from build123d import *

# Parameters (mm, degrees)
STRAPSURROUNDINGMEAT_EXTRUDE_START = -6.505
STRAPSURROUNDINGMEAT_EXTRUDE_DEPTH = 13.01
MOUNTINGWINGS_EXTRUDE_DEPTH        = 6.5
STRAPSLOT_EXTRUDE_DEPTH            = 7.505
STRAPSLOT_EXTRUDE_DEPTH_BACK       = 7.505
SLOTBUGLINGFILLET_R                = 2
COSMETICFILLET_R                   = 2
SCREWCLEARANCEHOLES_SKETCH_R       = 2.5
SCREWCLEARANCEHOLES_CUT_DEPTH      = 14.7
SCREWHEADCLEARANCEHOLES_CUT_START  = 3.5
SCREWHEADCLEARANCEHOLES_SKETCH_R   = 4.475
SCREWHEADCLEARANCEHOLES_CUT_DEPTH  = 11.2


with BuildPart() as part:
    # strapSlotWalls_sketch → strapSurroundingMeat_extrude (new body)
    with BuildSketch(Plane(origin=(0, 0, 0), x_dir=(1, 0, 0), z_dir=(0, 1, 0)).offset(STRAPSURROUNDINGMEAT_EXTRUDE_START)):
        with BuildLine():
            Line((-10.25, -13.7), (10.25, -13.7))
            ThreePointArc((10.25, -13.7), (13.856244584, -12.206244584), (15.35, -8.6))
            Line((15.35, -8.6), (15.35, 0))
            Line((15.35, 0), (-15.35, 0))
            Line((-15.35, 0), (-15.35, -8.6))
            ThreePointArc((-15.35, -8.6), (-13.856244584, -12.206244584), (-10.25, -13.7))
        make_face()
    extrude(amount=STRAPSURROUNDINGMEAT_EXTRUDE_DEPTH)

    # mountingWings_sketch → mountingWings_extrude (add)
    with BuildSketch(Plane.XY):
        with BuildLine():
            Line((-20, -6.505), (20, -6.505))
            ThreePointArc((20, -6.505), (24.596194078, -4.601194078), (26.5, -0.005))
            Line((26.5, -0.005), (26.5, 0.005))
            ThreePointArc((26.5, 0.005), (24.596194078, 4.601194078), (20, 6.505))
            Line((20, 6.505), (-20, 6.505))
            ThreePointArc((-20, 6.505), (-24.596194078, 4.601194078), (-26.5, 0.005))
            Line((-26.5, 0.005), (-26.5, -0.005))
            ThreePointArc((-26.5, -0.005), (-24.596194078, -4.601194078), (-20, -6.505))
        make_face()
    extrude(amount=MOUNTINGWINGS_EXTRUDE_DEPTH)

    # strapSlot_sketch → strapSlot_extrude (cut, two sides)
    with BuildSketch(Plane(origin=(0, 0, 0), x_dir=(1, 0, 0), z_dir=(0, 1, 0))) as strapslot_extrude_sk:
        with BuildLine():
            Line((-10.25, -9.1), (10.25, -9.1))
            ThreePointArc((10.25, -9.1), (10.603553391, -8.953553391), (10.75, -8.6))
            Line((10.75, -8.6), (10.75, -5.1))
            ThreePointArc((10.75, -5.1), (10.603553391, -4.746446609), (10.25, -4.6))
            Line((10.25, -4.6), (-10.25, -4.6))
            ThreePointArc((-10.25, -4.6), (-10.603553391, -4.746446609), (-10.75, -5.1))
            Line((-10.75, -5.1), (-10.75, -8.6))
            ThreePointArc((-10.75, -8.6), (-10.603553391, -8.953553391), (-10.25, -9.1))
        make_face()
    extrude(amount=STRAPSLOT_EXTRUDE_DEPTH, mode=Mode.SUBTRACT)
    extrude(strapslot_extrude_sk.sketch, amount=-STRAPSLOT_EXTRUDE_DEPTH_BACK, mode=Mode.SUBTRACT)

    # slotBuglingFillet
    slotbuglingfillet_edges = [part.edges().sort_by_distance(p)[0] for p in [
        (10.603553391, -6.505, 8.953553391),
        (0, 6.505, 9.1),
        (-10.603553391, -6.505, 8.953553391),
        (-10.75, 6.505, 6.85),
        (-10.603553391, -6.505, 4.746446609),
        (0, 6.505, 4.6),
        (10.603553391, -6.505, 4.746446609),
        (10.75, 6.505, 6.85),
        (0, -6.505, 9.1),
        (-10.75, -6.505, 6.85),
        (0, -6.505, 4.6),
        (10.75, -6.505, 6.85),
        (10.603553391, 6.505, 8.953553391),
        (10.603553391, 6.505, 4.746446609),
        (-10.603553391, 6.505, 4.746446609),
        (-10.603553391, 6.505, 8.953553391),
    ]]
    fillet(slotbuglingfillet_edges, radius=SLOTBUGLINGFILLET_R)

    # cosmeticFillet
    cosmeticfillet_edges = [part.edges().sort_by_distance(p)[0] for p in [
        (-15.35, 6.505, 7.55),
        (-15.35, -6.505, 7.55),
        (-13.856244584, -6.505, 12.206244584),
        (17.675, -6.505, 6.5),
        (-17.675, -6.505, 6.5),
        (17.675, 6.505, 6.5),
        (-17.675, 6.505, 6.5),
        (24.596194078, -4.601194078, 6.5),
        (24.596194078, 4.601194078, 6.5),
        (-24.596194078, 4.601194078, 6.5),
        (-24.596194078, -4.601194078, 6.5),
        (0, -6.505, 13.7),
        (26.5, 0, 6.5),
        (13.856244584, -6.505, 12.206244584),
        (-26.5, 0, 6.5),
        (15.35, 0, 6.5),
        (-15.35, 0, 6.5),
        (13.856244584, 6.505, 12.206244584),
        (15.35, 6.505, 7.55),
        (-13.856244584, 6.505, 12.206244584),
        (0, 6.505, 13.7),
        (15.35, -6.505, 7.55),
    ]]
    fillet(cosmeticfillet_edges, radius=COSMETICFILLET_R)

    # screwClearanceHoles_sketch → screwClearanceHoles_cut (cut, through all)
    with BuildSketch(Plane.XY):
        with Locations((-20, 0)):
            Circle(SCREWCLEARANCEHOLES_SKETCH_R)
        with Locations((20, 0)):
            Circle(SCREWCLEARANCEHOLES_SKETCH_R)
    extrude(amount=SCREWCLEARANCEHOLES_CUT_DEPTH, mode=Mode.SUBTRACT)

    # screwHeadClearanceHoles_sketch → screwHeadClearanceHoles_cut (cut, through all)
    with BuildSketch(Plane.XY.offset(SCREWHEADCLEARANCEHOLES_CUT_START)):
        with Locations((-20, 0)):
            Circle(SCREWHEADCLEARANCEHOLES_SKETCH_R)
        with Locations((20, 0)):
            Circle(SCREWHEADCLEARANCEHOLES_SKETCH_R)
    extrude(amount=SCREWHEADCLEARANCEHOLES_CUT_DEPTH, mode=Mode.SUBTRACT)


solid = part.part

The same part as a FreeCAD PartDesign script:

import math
import FreeCAD as App
import Part
import Sketcher

V = App.Vector


def edges_at(feature, points):
    """Names of the edges that pass closest to the given points."""
    edges = feature.Shape.Edges
    near = lambda p: min(range(len(edges)), key=lambda i: edges[i].distToShape(Part.Vertex(*p))[0])
    return sorted({f"Edge{near(p) + 1}" for p in points})

doc = App.newDocument("Part")
body = doc.addObject("PartDesign::Body", "Body")

sketch1 = doc.addObject("Sketcher::SketchObject", "Sketch")
body.addObject(sketch1)
sketch1.AttachmentSupport = (doc.XZ_Plane, [""])
sketch1.MapMode = "FlatFace"
sketch1.AttachmentOffset = App.Placement(V(0, 0, 6.505), App.Rotation())
sketch1.addGeometry([
    Part.LineSegment(V(-10, 14, 0), V(10, 14, 0)),
    Part.ArcOfCircle(Part.Circle(V(10, 9, 0), V(0, 0, 1), 5), math.radians(0), math.radians(90)),
    Part.LineSegment(V(15, 9, 0), V(15, 0, 0)),
    Part.LineSegment(V(15, 0, 0), V(-15, 0, 0)),
    Part.LineSegment(V(-15, 0, 0), V(-15, 9, 0)),
    Part.ArcOfCircle(Part.Circle(V(-10, 9, 0), V(0, 0, 1), 5), math.radians(90), math.radians(180)),
], False)
sketch1.addConstraint([
    Sketcher.Constraint("Tangent", 0, 2, 1, 2),
    Sketcher.Constraint("Tangent", 1, 1, 2, 1),
    Sketcher.Constraint("Coincident", 2, 2, 3, 1),
    Sketcher.Constraint("Coincident", 3, 2, 4, 1),
    Sketcher.Constraint("Tangent", 4, 2, 5, 2),
    Sketcher.Constraint("Tangent", 5, 1, 0, 1),
    Sketcher.Constraint("Horizontal", 0),
    Sketcher.Constraint("Vertical", 2),
    Sketcher.Constraint("Horizontal", 3),
    Sketcher.Constraint("Vertical", 4),
    Sketcher.Constraint("Equal", 1, 5),
    Sketcher.Constraint("Symmetric", 2, 2, 3, 2, -1, 1),
    Sketcher.Constraint("Radius", 1, 5.1),
    Sketcher.Constraint("DistanceX", 0, 1, 0, 2, 20.5),
    Sketcher.Constraint("DistanceY", 2, 2, 2, 1, 8.6),
])
pad1 = doc.addObject("PartDesign::Pad", "Pad")
body.addObject(pad1)
pad1.Profile = sketch1
pad1.Length = 13.01
pad1.Reversed = True

sketch2 = doc.addObject("Sketcher::SketchObject", "Sketch001")
body.addObject(sketch2)
sketch2.AttachmentSupport = (doc.XY_Plane, [""])
sketch2.MapMode = "FlatFace"
sketch2.addGeometry([
    Part.LineSegment(V(-20, -6.505, 0), V(20, -6.505, 0)),
    Part.ArcOfCircle(Part.Circle(V(20, -0.005, 0), V(0, 0, 1), 6.5), math.radians(-90), math.radians(0)),
    Part.LineSegment(V(26.5, -0.005, 0), V(26.5, 0.005, 0)),
    Part.ArcOfCircle(Part.Circle(V(20, 0.005, 0), V(0, 0, 1), 6.5), math.radians(0), math.radians(90)),
    Part.LineSegment(V(20, 6.505, 0), V(-20, 6.505, 0)),
    Part.ArcOfCircle(Part.Circle(V(-20, 0.005, 0), V(0, 0, 1), 6.5), math.radians(90), math.radians(180)),
    Part.LineSegment(V(-26.5, 0.005, 0), V(-26.5, -0.005, 0)),
    Part.ArcOfCircle(Part.Circle(V(-20, -0.005, 0), V(0, 0, 1), 6.5), math.radians(180), math.radians(270)),
], False)
sketch2.addConstraint([
    Sketcher.Constraint("Tangent", 0, 2, 1, 1),
    Sketcher.Constraint("Tangent", 1, 2, 2, 1),
    Sketcher.Constraint("Tangent", 2, 2, 3, 1),
    Sketcher.Constraint("Tangent", 3, 2, 4, 1),
    Sketcher.Constraint("Tangent", 4, 2, 5, 1),
    Sketcher.Constraint("Tangent", 5, 2, 6, 1),
    Sketcher.Constraint("Tangent", 6, 2, 7, 1),
    Sketcher.Constraint("Tangent", 7, 2, 0, 1),
    Sketcher.Constraint("Horizontal", 0),
    Sketcher.Constraint("Horizontal", 4),
    Sketcher.Constraint("Equal", 1, 3),
    Sketcher.Constraint("Equal", 3, 5),
    Sketcher.Constraint("Equal", 5, 7),
    Sketcher.Constraint("Symmetric", 1, 3, 5, 3, -1, 1),
    Sketcher.Constraint("Horizontal", 7, 3, 1, 2),
    Sketcher.Constraint("Horizontal", 2, 2, 5, 2),
    Sketcher.Constraint("Radius", 1, 6.5),
    Sketcher.Constraint("DistanceX", 0, 1, 0, 2, 40.0),
    Sketcher.Constraint("DistanceY", 2, 1, 2, 2, 0.01),
])
pad2 = doc.addObject("PartDesign::Pad", "Pad001")
body.addObject(pad2)
pad2.Profile = sketch2
pad2.Length = 6.5

sketch3 = doc.addObject("Sketcher::SketchObject", "Sketch002")
body.addObject(sketch3)
sketch3.AttachmentSupport = (doc.XZ_Plane, [""])
sketch3.MapMode = "FlatFace"
sketch3.addGeometry([
    Part.LineSegment(V(-10.25, 9.1, 0), V(10.25, 9.1, 0)),
    Part.ArcOfCircle(Part.Circle(V(10.25, 8.6, 0), V(0, 0, 1), 0.5), math.radians(0), math.radians(90)),
    Part.LineSegment(V(10.75, 8.6, 0), V(10.75, 5.1, 0)),
    Part.ArcOfCircle(Part.Circle(V(10.25, 5.1, 0), V(0, 0, 1), 0.5), math.radians(-90), math.radians(0)),
    Part.LineSegment(V(10.25, 4.6, 0), V(-10.25, 4.6, 0)),
    Part.ArcOfCircle(Part.Circle(V(-10.25, 5.1, 0), V(0, 0, 1), 0.5), math.radians(180), math.radians(270)),
    Part.LineSegment(V(-10.75, 5.1, 0), V(-10.75, 8.6, 0)),
    Part.ArcOfCircle(Part.Circle(V(-10.25, 8.6, 0), V(0, 0, 1), 0.5), math.radians(90), math.radians(180)),
], False)
sketch3.addConstraint([
    Sketcher.Constraint("Tangent", 0, 2, 1, 2),
    Sketcher.Constraint("Tangent", 1, 1, 2, 1),
    Sketcher.Constraint("Tangent", 2, 2, 3, 2),
    Sketcher.Constraint("Tangent", 3, 1, 4, 1),
    Sketcher.Constraint("Tangent", 4, 2, 5, 2),
    Sketcher.Constraint("Tangent", 5, 1, 6, 1),
    Sketcher.Constraint("Tangent", 6, 2, 7, 2),
    Sketcher.Constraint("Tangent", 7, 1, 0, 1),
    Sketcher.Constraint("Horizontal", 0),
    Sketcher.Constraint("Vertical", 2),
    Sketcher.Constraint("Horizontal", 4),
    Sketcher.Constraint("Vertical", 6),
    Sketcher.Constraint("Equal", 1, 3),
    Sketcher.Constraint("Equal", 3, 5),
    Sketcher.Constraint("Equal", 5, 7),
    Sketcher.Constraint("Radius", 1, 0.5),
    Sketcher.Constraint("DistanceX", 0, 1, 0, 2, 20.5),
    Sketcher.Constraint("DistanceY", 2, 2, 2, 1, 3.5),
    Sketcher.Constraint("DistanceY", -1, 1, 1, 3, 8.6),
    Sketcher.Constraint("DistanceX", -1, 1, 1, 3, 10.25),
])
pocket1 = doc.addObject("PartDesign::Pocket", "Pocket")
body.addObject(pocket1)
pocket1.Profile = sketch3
pocket1.Type = "ThroughAll"
pocket1.Midplane = True
doc.recompute()

fillet = doc.addObject("PartDesign::Fillet", "Fillet")
body.addObject(fillet)
fillet.Base = (pocket1, edges_at(pocket1, [
    (10.604, -6.505, 8.954),
    (0, 6.505, 9.1),
    (-10.604, -6.505, 8.954),
    (-10.75, 6.505, 6.85),
    (-10.604, -6.505, 4.746),
    (0, 6.505, 4.6),
    (10.604, -6.505, 4.746),
    (10.75, 6.505, 6.85),
    (0, -6.505, 9.1),
    (-10.75, -6.505, 6.85),
    (0, -6.505, 4.6),
    (10.75, -6.505, 6.85),
    (10.604, 6.505, 8.954),
    (10.604, 6.505, 4.746),
    (-10.604, 6.505, 4.746),
    (-10.604, 6.505, 8.954),
]))
fillet.Radius = 2
doc.recompute()

fillet2 = doc.addObject("PartDesign::Fillet", "Fillet001")
body.addObject(fillet2)
fillet2.Base = (fillet, edges_at(fillet, [
    (-15.35, 6.505, 7.55),
    (-15.35, -6.505, 7.55),
    (-13.856, -6.505, 12.206),
    (17.675, -6.505, 6.5),
    (-17.675, -6.505, 6.5),
    (17.675, 6.505, 6.5),
    (-17.675, 6.505, 6.5),
    (24.596, -4.601, 6.5),
    (24.596, 4.601, 6.5),
    (-24.596, 4.601, 6.5),
    (-24.596, -4.601, 6.5),
    (0, -6.505, 13.7),
    (26.5, 0, 6.5),
    (13.856, -6.505, 12.206),
    (-26.5, 0, 6.5),
    (15.35, 0, 6.5),
    (-15.35, 0, 6.5),
    (13.856, 6.505, 12.206),
    (15.35, 6.505, 7.55),
    (-13.856, 6.505, 12.206),
    (0, 6.505, 13.7),
    (15.35, -6.505, 7.55),
]))
fillet2.Radius = 2

sketch4 = doc.addObject("Sketcher::SketchObject", "Sketch003")
body.addObject(sketch4)
sketch4.AttachmentSupport = (doc.XY_Plane, [""])
sketch4.MapMode = "FlatFace"
sketch4.addGeometry([
    Part.Circle(V(-20, 0, 0), V(0, 0, 1), 2.5),
    Part.Circle(V(20, 0, 0), V(0, 0, 1), 2.5),
], False)
sketch4.addConstraint([
    Sketcher.Constraint("Equal", 0, 1),
    Sketcher.Constraint("Symmetric", 0, 3, 1, 3, -1, 1),
    Sketcher.Constraint("PointOnObject", 0, 3, -1),
    Sketcher.Constraint("Diameter", 0, 5.0),
    Sketcher.Constraint("DistanceX", 0, 3, -1, 1, 20.0),
])
pocket2 = doc.addObject("PartDesign::Pocket", "Pocket001")
body.addObject(pocket2)
pocket2.Profile = sketch4
pocket2.Type = "ThroughAll"
pocket2.Reversed = True

sketch5 = doc.addObject("Sketcher::SketchObject", "Sketch004")
body.addObject(sketch5)
sketch5.AttachmentSupport = (doc.XY_Plane, [""])
sketch5.MapMode = "FlatFace"
sketch5.AttachmentOffset = App.Placement(V(0, 0, 3.5), App.Rotation())
sketch5.addGeometry([
    Part.Circle(V(-20, 0, 0), V(0, 0, 1), 4.5),
    Part.Circle(V(20, 0, 0), V(0, 0, 1), 4.5),
], False)
sketch5.addConstraint([
    Sketcher.Constraint("Equal", 0, 1),
    Sketcher.Constraint("Symmetric", 0, 3, 1, 3, -1, 1),
    Sketcher.Constraint("PointOnObject", 0, 3, -1),
    Sketcher.Constraint("Diameter", 0, 8.95),
    Sketcher.Constraint("DistanceX", 0, 3, -1, 1, 20.0),
])
pocket3 = doc.addObject("PartDesign::Pocket", "Pocket002")
body.addObject(pocket3)
pocket3.Profile = sketch5
pocket3.Type = "ThroughAll"
pocket3.Reversed = True

doc.recompute()
